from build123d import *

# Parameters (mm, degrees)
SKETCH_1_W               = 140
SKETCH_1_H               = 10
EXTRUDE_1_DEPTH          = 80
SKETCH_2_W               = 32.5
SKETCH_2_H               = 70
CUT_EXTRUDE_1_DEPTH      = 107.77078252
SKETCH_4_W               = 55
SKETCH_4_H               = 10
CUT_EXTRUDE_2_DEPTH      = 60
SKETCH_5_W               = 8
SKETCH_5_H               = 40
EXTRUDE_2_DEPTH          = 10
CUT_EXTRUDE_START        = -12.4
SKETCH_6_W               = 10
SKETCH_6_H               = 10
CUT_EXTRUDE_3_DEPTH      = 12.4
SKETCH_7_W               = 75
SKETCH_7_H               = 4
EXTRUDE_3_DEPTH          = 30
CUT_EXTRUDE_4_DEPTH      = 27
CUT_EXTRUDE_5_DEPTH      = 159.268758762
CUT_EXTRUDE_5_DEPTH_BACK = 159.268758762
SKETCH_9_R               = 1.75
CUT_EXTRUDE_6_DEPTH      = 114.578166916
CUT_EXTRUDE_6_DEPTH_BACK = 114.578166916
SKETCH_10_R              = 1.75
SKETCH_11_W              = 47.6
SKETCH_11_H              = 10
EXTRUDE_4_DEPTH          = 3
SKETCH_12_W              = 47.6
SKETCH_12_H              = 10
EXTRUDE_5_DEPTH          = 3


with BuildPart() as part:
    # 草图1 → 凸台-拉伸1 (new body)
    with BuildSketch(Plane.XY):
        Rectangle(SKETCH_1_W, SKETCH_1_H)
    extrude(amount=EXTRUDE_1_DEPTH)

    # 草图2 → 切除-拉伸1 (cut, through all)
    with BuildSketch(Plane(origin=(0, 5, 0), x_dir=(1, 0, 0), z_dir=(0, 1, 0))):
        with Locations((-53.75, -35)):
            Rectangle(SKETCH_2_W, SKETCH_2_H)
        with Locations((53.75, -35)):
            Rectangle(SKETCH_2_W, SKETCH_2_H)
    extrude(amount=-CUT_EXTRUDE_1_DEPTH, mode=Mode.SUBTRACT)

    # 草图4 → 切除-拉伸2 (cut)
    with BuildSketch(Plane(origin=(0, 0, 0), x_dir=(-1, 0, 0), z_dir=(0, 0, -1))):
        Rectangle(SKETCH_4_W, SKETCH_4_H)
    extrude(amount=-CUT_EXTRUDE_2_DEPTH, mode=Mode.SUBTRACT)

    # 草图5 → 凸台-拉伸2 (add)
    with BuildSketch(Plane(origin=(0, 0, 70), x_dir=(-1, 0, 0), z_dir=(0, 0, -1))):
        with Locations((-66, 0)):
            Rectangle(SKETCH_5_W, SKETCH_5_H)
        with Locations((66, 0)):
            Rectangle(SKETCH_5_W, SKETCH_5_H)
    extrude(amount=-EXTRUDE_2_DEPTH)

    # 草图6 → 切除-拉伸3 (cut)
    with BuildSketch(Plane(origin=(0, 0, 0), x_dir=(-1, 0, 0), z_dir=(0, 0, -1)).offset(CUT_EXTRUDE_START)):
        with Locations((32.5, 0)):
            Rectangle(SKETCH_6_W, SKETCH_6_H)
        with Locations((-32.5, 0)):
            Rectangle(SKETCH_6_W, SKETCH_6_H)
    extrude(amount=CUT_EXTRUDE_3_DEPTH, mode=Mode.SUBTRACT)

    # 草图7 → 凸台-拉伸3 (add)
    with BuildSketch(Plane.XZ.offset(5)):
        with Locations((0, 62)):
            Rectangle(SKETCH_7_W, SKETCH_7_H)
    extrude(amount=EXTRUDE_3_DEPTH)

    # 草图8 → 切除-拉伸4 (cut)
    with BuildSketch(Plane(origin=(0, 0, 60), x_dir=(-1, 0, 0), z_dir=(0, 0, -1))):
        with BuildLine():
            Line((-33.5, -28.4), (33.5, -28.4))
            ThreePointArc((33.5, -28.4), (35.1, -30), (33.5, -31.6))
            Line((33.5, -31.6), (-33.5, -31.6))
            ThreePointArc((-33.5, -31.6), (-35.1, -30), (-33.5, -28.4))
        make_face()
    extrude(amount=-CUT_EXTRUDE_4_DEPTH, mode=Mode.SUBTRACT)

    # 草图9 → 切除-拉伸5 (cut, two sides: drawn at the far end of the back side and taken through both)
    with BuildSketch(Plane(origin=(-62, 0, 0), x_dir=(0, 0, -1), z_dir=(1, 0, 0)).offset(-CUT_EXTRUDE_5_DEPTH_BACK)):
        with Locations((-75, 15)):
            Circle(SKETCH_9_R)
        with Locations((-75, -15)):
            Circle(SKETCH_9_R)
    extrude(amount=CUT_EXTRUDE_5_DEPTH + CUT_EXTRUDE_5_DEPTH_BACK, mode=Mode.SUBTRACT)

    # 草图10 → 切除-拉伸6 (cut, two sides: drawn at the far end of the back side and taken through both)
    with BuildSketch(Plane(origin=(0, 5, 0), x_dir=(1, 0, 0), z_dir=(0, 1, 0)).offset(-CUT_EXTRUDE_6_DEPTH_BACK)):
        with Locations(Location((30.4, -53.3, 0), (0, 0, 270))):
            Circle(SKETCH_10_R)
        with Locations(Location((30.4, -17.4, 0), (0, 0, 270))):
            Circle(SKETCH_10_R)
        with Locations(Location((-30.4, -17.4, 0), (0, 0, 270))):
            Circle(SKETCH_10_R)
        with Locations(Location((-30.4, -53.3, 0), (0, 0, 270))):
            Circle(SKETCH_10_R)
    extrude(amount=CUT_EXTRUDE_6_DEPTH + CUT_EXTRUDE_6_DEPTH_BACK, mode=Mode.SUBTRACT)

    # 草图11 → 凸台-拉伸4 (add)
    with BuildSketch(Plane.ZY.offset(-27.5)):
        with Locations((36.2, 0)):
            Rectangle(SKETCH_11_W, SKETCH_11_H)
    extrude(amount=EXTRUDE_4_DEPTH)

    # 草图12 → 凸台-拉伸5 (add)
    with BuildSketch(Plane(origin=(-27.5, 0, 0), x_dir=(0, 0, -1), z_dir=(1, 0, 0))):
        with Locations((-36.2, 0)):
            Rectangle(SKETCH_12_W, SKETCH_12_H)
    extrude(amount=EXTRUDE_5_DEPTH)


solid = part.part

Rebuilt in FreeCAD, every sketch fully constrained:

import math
import FreeCAD as App
import Part
import Sketcher

V = App.Vector
Q = App.Units.Quantity

doc = App.newDocument("Part")
params = doc.addObject("Spreadsheet::Sheet", "Params")
for row, (alias, value) in enumerate([
    ("sketch1_width", "140 mm"),
    ("sketch1_height", "10 mm"),
    ("pad1_length", "80 mm"),
    ("sketch2_height", "70 mm"),
    ("sketch2_width", "32.5 mm"),
    ("sketch3_width", "55 mm"),
    ("sketch3_height", "10 mm"),
    ("pocket2_length", "60 mm"),
    ("sketch4_width", "8 mm"),
    ("sketch4_height", "40 mm"),
    ("pad2_length", "10 mm"),
    ("sketch5_width", "10 mm"),
    ("pocket3_length", "12.4 mm"),
    ("sketch6_width", "75 mm"),
    ("sketch6_height", "4 mm"),
    ("pad3_length", "30 mm"),
    ("sketch7_radius", "1.6 mm"),
    ("sketch7_width", "67 mm"),
    ("pocket4_length", "27 mm"),
    ("sketch8_diameter", "3.5 mm"),
    ("sketch9_diameter", "3.5 mm"),
    ("sketch10_width", "10 mm"),
    ("sketch10_height", "47.6 mm"),
    ("pad4_length", "3 mm"),
    ("sketch11_width", "10 mm"),
    ("sketch11_height", "47.6 mm"),
    ("pad5_length", "3 mm"),
], start=1):
    params.set(f"A{row}", alias)
    params.set(f"B{row}", "=" + value)
    params.setAlias(f"B{row}", alias)

body = doc.addObject("PartDesign::Body", "Body")

# Sketch on XY plane
sketch1 = body.newObject("Sketcher::SketchObject", "Sketch")
sketch1.AttachmentSupport = (doc.getObject("XY_Plane"), [""])
sketch1.MapMode = "FlatFace"
sketch1.addGeometry([
    Part.LineSegment(V(-70, 5, 0), V(-70, -5, 0)),
    Part.LineSegment(V(-70, -5, 0), V(70, -5, 0)),
    Part.LineSegment(V(70, -5, 0), V(70, 5, 0)),
    Part.LineSegment(V(70, 5, 0), V(-70, 5, 0)),
], False)
sketch1.addConstraint([
    Sketcher.Constraint("Coincident", 0, 2, 1, 1),
    Sketcher.Constraint("Coincident", 1, 2, 2, 1),
    Sketcher.Constraint("Coincident", 2, 2, 3, 1),
    Sketcher.Constraint("Coincident", 3, 2, 0, 1),
    Sketcher.Constraint("Vertical", 0),
    Sketcher.Constraint("Horizontal", 1),
    Sketcher.Constraint("Vertical", 2),
    Sketcher.Constraint("Horizontal", 3),
    Sketcher.Constraint("Symmetric", 0, 2, 2, 2, -1, 1),
    Sketcher.Constraint("DistanceX", 1, 1, 1, 2, Q("140 mm")),
    Sketcher.Constraint("DistanceY", 0, 2, 0, 1, Q("10 mm")),
])
sketch1.setExpression("Constraints[9]", "Params.sketch1_width")
sketch1.setExpression("Constraints[10]", "Params.sketch1_height")
pad1 = body.newObject("PartDesign::Pad", "Pad")
pad1.Profile = sketch1
pad1.setExpression("Length", "Params.pad1_length")

# Sketch on XZ plane
sketch2 = body.newObject("Sketcher::SketchObject", "Sketch001")
sketch2.AttachmentSupport = (doc.getObject("XZ_Plane"), [""])
sketch2.MapMode = "FlatFace"
sketch2.AttachmentOffset = App.Placement(V(0, 0, -5), App.Rotation())
sketch2.addGeometry([
    Part.LineSegment(V(-70, 0, 0), V(-70, 70, 0)),  # 0
    Part.LineSegment(V(-70, 70, 0), V(-37.5, 70, 0)),  # 1
    Part.LineSegment(V(-37.5, 70, 0), V(-37.5, 0, 0)),  # 2
    Part.LineSegment(V(-37.5, 0, 0), V(-70, 0, 0)),  # 3
    Part.LineSegment(V(37.5, 0, 0), V(37.5, 70, 0)),  # 4
    Part.LineSegment(V(37.5, 70, 0), V(70, 70, 0)),  # 5
    Part.LineSegment(V(70, 70, 0), V(70, 0, 0)),  # 6
    Part.LineSegment(V(70, 0, 0), V(37.5, 0, 0)),  # 7
], False)
sketch2.addConstraint([
    Sketcher.Constraint("Coincident", 0, 2, 1, 1),
    Sketcher.Constraint("Coincident", 1, 2, 2, 1),
    Sketcher.Constraint("Coincident", 2, 2, 3, 1),
    Sketcher.Constraint("Coincident", 3, 2, 0, 1),
    Sketcher.Constraint("Coincident", 4, 2, 5, 1),
    Sketcher.Constraint("Coincident", 5, 2, 6, 1),
    Sketcher.Constraint("Coincident", 6, 2, 7, 1),
    Sketcher.Constraint("Coincident", 7, 2, 4, 1),
    Sketcher.Constraint("Vertical", 0),
    Sketcher.Constraint("Horizontal", 1),
    Sketcher.Constraint("Vertical", 2),
    Sketcher.Constraint("Horizontal", 3),
    Sketcher.Constraint("Vertical", 4),
    Sketcher.Constraint("Horizontal", 5),
    Sketcher.Constraint("Vertical", 6),
    Sketcher.Constraint("Horizontal", 7),
    Sketcher.Constraint("Symmetric", 3, 2, 6, 2, -1, 1),
    Sketcher.Constraint("Symmetric", 1, 2, 4, 2, -2),
    Sketcher.Constraint("PointOnObject", 2, 2, -1),
    Sketcher.Constraint("DistanceY", 0, 1, 0, 2, Q("70 mm")),
    Sketcher.Constraint("DistanceX", 1, 1, 1, 2, Q("32.5 mm")),
    Sketcher.Constraint("DistanceX", 0, 2, -1, 1, Q("70 mm")),
])
sketch2.setExpression("Constraints[19]", "Params.sketch2_height")
sketch2.setExpression("Constraints[20]", "Params.sketch2_width")
pocket1 = body.newObject("PartDesign::Pocket", "Pocket")
pocket1.Profile = sketch2
pocket1.Type = "ThroughAll"
pocket1.Reversed = True

# Sketch on XY plane
sketch3 = body.newObject("Sketcher::SketchObject", "Sketch002")
sketch3.AttachmentSupport = (doc.getObject("XY_Plane"), [""])
sketch3.MapMode = "FlatFace"
sketch3.addGeometry([
    Part.LineSegment(V(27.5, 5, 0), V(27.5, -5, 0)),
    Part.LineSegment(V(27.5, -5, 0), V(-27.5, -5, 0)),
    Part.LineSegment(V(-27.5, -5, 0), V(-27.5, 5, 0)),
    Part.LineSegment(V(-27.5, 5, 0), V(27.5, 5, 0)),
], False)
sketch3.addConstraint([
    Sketcher.Constraint("Coincident", 0, 2, 1, 1),
    Sketcher.Constraint("Coincident", 1, 2, 2, 1),
    Sketcher.Constraint("Coincident", 2, 2, 3, 1),
    Sketcher.Constraint("Coincident", 3, 2, 0, 1),
    Sketcher.Constraint("Vertical", 0),
    Sketcher.Constraint("Horizontal", 1),
    Sketcher.Constraint("Vertical", 2),
    Sketcher.Constraint("Horizontal", 3),
    Sketcher.Constraint("Symmetric", 0, 2, 2, 2, -1, 1),
    Sketcher.Constraint("DistanceX", 1, 2, 1, 1, Q("55 mm")),
    Sketcher.Constraint("DistanceY", 0, 2, 0, 1, Q("10 mm")),
])
sketch3.setExpression("Constraints[9]", "Params.sketch3_width")
sketch3.setExpression("Constraints[10]", "Params.sketch3_height")
pocket2 = body.newObject("PartDesign::Pocket", "Pocket001")
pocket2.Profile = sketch3
pocket2.setExpression("Length", "Params.pocket2_length")
pocket2.Reversed = True

# Sketch on XY plane
sketch4 = body.newObject("Sketcher::SketchObject", "Sketch003")
sketch4.AttachmentSupport = (doc.getObject("XY_Plane"), [""])
sketch4.MapMode = "FlatFace"
sketch4.AttachmentOffset = App.Placement(V(0, 0, 70), App.Rotation())
sketch4.addGeometry([
    Part.LineSegment(V(70, 20, 0), V(70, -20, 0)),  # 0
    Part.LineSegment(V(70, -20, 0), V(62, -20, 0)),  # 1
    Part.LineSegment(V(62, -20, 0), V(62, 20, 0)),  # 2
    Part.LineSegment(V(62, 20, 0), V(70, 20, 0)),  # 3
    Part.LineSegment(V(-62, 20, 0), V(-62, -20, 0)),  # 4
    Part.LineSegment(V(-62, -20, 0), V(-70, -20, 0)),  # 5
    Part.LineSegment(V(-70, -20, 0), V(-70, 20, 0)),  # 6
    Part.LineSegment(V(-70, 20, 0), V(-62, 20, 0)),  # 7
], False)
sketch4.addConstraint([
    Sketcher.Constraint("Coincident", 0, 2, 1, 1),
    Sketcher.Constraint("Coincident", 1, 2, 2, 1),
    Sketcher.Constraint("Coincident", 2, 2, 3, 1),
    Sketcher.Constraint("Coincident", 3, 2, 0, 1),
    Sketcher.Constraint("Coincident", 4, 2, 5, 1),
    Sketcher.Constraint("Coincident", 5, 2, 6, 1),
    Sketcher.Constraint("Coincident", 6, 2, 7, 1),
    Sketcher.Constraint("Coincident", 7, 2, 4, 1),
    Sketcher.Constraint("Vertical", 0),
    Sketcher.Constraint("Horizontal", 1),
    Sketcher.Constraint("Vertical", 2),
    Sketcher.Constraint("Horizontal", 3),
    Sketcher.Constraint("Vertical", 4),
    Sketcher.Constraint("Horizontal", 5),
    Sketcher.Constraint("Vertical", 6),
    Sketcher.Constraint("Horizontal", 7),
    Sketcher.Constraint("Symmetric", 2, 2, 4, 2, -1, 1),
    Sketcher.Constraint("Symmetric", 0, 2, 6, 2, -1, 1),
    Sketcher.Constraint("Horizontal", 1, 2, 4, 2),
    Sketcher.Constraint("DistanceX", 1, 2, 1, 1, Q("8 mm")),
    Sketcher.Constraint("DistanceY", 0, 2, 0, 1, Q("40 mm")),
    Sketcher.Constraint("DistanceX", -1, 1, 0, 2, Q("70 mm")),
])
sketch4.setExpression("Constraints[19]", "Params.sketch4_width")
sketch4.setExpression("Constraints[20]", "Params.sketch4_height")
pad2 = body.newObject("PartDesign::Pad", "Pad001")
pad2.Profile = sketch4
pad2.setExpression("Length", "Params.pad2_length")

# Sketch on XY plane
sketch5 = body.newObject("Sketcher::SketchObject", "Sketch004")
sketch5.AttachmentSupport = (doc.getObject("XY_Plane"), [""])
sketch5.MapMode = "FlatFace"
sketch5.AttachmentOffset = App.Placement(V(0, 0, 12.4), App.Rotation())
sketch5.addGeometry([
    Part.LineSegment(V(-27.5, 5, 0), V(-27.5, -5, 0)),  # 0
    Part.LineSegment(V(-27.5, -5, 0), V(-37.5, -5, 0)),  # 1
    Part.LineSegment(V(-37.5, -5, 0), V(-37.5, 5, 0)),  # 2
    Part.LineSegment(V(-37.5, 5, 0), V(-27.5, 5, 0)),  # 3
    Part.LineSegment(V(37.5, 5, 0), V(37.5, -5, 0)),  # 4
    Part.LineSegment(V(37.5, -5, 0), V(27.5, -5, 0)),  # 5
    Part.LineSegment(V(27.5, -5, 0), V(27.5, 5, 0)),  # 6
    Part.LineSegment(V(27.5, 5, 0), V(37.5, 5, 0)),  # 7
], False)
sketch5.addConstraint([
    Sketcher.Constraint("Coincident", 0, 2, 1, 1),
    Sketcher.Constraint("Coincident", 1, 2, 2, 1),
    Sketcher.Constraint("Coincident", 2, 2, 3, 1),
    Sketcher.Constraint("Coincident", 3, 2, 0, 1),
    Sketcher.Constraint("Coincident", 4, 2, 5, 1),
    Sketcher.Constraint("Coincident", 5, 2, 6, 1),
    Sketcher.Constraint("Coincident", 6, 2, 7, 1),
    Sketcher.Constraint("Coincident", 7, 2, 4, 1),
    Sketcher.Constraint("Vertical", 0),
    Sketcher.Constraint("Horizontal", 1),
    Sketcher.Constraint("Vertical", 2),
    Sketcher.Constraint("Horizontal", 3),
    Sketcher.Constraint("Vertical", 4),
    Sketcher.Constraint("Horizontal", 5),
    Sketcher.Constraint("Vertical", 6),
    Sketcher.Constraint("Horizontal", 7),
    Sketcher.Constraint("Symmetric", 2, 2, 4, 2, -1, 1),
    Sketcher.Constraint("Symmetric", 0, 2, 6, 2, -1, 1),
    Sketcher.Constraint("Horizontal", 1, 2, 4, 2),
    Sketcher.Constraint("Equal", 7, 0),
    Sketcher.Constraint("DistanceX", 1, 2, 1, 1, Q("10 mm")),
    Sketcher.Constraint("DistanceX", 0, 2, 4, 2, Q("65 mm")),
])
sketch5.setExpression("Constraints[20]", "Params.sketch5_width")
pocket3 = body.newObject("PartDesign::Pocket", "Pocket002")
pocket3.Profile = sketch5
pocket3.setExpression("Length", "Params.pocket3_length")

# Sketch on XZ plane
sketch6 = body.newObject("Sketcher::SketchObject", "Sketch005")
sketch6.AttachmentSupport = (doc.getObject("XZ_Plane"), [""])
sketch6.MapMode = "FlatFace"
sketch6.AttachmentOffset = App.Placement(V(0, 0, 5), App.Rotation())
sketch6.addGeometry([
    Part.LineSegment(V(-37.5, 64, 0), V(-37.5, 60, 0)),
    Part.LineSegment(V(-37.5, 60, 0), V(37.5, 60, 0)),
    Part.LineSegment(V(37.5, 60, 0), V(37.5, 64, 0)),
    Part.LineSegment(V(37.5, 64, 0), V(-37.5, 64, 0)),
], False)
sketch6.addConstraint([
    Sketcher.Constraint("Coincident", 0, 2, 1, 1),
    Sketcher.Constraint("Coincident", 1, 2, 2, 1),
    Sketcher.Constraint("Coincident", 2, 2, 3, 1),
    Sketcher.Constraint("Coincident", 3, 2, 0, 1),
    Sketcher.Constraint("Vertical", 0),
    Sketcher.Constraint("Horizontal", 1),
    Sketcher.Constraint("Vertical", 2),
    Sketcher.Constraint("Horizontal", 3),
    Sketcher.Constraint("DistanceX", 1, 1, 1, 2, Q("75 mm")),
    Sketcher.Constraint("DistanceY", 0, 2, 0, 1, Q("4 mm")),
    Sketcher.Constraint("DistanceY", -1, 1, 0, 2, Q("60 mm")),
    Sketcher.Constraint("DistanceX", 0, 2, -1, 1, Q("37.5 mm")),
])
sketch6.setExpression("Constraints[8]", "Params.sketch6_width")
sketch6.setExpression("Constraints[9]", "Params.sketch6_height")
pad3 = body.newObject("PartDesign::Pad", "Pad002")
pad3.Profile = sketch6
pad3.setExpression("Length", "Params.pad3_length")

# Sketch on XY plane
sketch7 = body.newObject("Sketcher::SketchObject", "Sketch006")
sketch7.AttachmentSupport = (doc.getObject("XY_Plane"), [""])
sketch7.MapMode = "FlatFace"
sketch7.AttachmentOffset = App.Placement(V(0, 0, 60), App.Rotation())
sketch7.addGeometry([
    Part.LineSegment(V(-33.5, -28.4, 0), V(33.5, -28.4, 0)),
    Part.ArcOfCircle(Part.Circle(V(33.5, -30, 0), V(0, 0, 1), 1.6), math.radians(-90), math.radians(90)),
    Part.LineSegment(V(33.5, -31.6, 0), V(-33.5, -31.6, 0)),
    Part.ArcOfCircle(Part.Circle(V(-33.5, -30, 0), V(0, 0, 1), 1.6), math.radians(90), math.radians(270)),
], False)
sketch7.addConstraint([
    Sketcher.Constraint("Tangent", 0, 2, 1, 2),
    Sketcher.Constraint("Tangent", 1, 1, 2, 1),
    Sketcher.Constraint("Tangent", 2, 2, 3, 2),
    Sketcher.Constraint("Tangent", 3, 1, 0, 1),
    Sketcher.Constraint("Horizontal", 0),
    Sketcher.Constraint("Horizontal", 2),
    Sketcher.Constraint("Radius", 1, Q("1.6 mm")),
    Sketcher.Constraint("DistanceX", 0, 1, 0, 2, Q("67 mm")),
    Sketcher.Constraint("DistanceY", 1, 3, -1, 1, Q("30 mm")),
    Sketcher.Constraint("DistanceX", -1, 1, 1, 3, Q("33.5 mm")),
])
sketch7.setExpression("Constraints[6]", "Params.sketch7_radius")
sketch7.setExpression("Constraints[7]", "Params.sketch7_width")
pocket4 = body.newObject("PartDesign::Pocket", "Pocket003")
pocket4.Profile = sketch7
pocket4.setExpression("Length", "Params.pocket4_length")
pocket4.Reversed = True

# Sketch on YZ plane
sketch8 = body.newObject("Sketcher::SketchObject", "Sketch007")
sketch8.AttachmentSupport = (doc.getObject("YZ_Plane"), [""])
sketch8.MapMode = "FlatFace"
sketch8.AttachmentOffset = App.Placement(V(0, 0, -62), App.Rotation())
sketch8.addGeometry([
    Part.Circle(V(15, 75, 0), V(0, 0, 1), 1.75),
    Part.Circle(V(-15, 75, 0), V(0, 0, 1), 1.75),
], False)
sketch8.addConstraint([
    Sketcher.Constraint("Equal", 0, 1),
    Sketcher.Constraint("Symmetric", 0, 3, 1, 3, -2),
    Sketcher.Constraint("Diameter", 0, Q("3.5 mm")),
    Sketcher.Constraint("DistanceX", -1, 1, 0, 3, Q("15 mm")),
    Sketcher.Constraint("DistanceY", -1, 1, 0, 3, Q("75 mm")),
])
sketch8.setExpression("Constraints[2]", "Params.sketch8_diameter")
pocket5 = body.newObject("PartDesign::Pocket", "Pocket004")
pocket5.Profile = sketch8
pocket5.Type = "ThroughAll"
pocket5.Midplane = True

# Sketch on XZ plane
sketch9 = body.newObject("Sketcher::SketchObject", "Sketch008")
sketch9.AttachmentSupport = (doc.getObject("XZ_Plane"), [""])
sketch9.MapMode = "FlatFace"
sketch9.AttachmentOffset = App.Placement(V(0, 0, -5), App.Rotation())
sketch9.addGeometry([
    Part.Circle(V(30.4, 53.3, 0), V(0, 0, 1), 1.75),
    Part.Circle(V(30.4, 17.4, 0), V(0, 0, 1), 1.75),
    Part.Circle(V(-30.4, 17.4, 0), V(0, 0, 1), 1.75),
    Part.Circle(V(-30.4, 53.3, 0), V(0, 0, 1), 1.75),
], False)
sketch9.addConstraint([
    Sketcher.Constraint("Equal", 0, 1),
    Sketcher.Constraint("Equal", 1, 2),
    Sketcher.Constraint("Equal", 2, 3),
    Sketcher.Constraint("Symmetric", 1, 3, 2, 3, -2),
    Sketcher.Constraint("Symmetric", 0, 3, 3, 3, -2),
    Sketcher.Constraint("Vertical", 0, 3, 1, 3),
    Sketcher.Constraint("Diameter", 0, Q("3.5 mm")),
    Sketcher.Constraint("DistanceX", -1, 1, 0, 3, Q("30.4 mm")),
    Sketcher.Constraint("DistanceY", -1, 1, 0, 3, Q("53.3 mm")),
    Sketcher.Constraint("DistanceY", -1, 1, 1, 3, Q("17.4 mm")),
])
sketch9.setExpression("Constraints[6]", "Params.sketch9_diameter")
pocket6 = body.newObject("PartDesign::Pocket", "Pocket005")
pocket6.Profile = sketch9
pocket6.Type = "ThroughAll"
pocket6.Midplane = True

# Sketch on YZ plane
sketch10 = body.newObject("Sketcher::SketchObject", "Sketch009")
sketch10.AttachmentSupport = (doc.getObject("YZ_Plane"), [""])
sketch10.MapMode = "FlatFace"
sketch10.AttachmentOffset = App.Placement(V(0, 0, 27.5), App.Rotation())
sketch10.addGeometry([
    Part.LineSegment(V(5, 12.4, 0), V(-5, 12.4, 0)),
    Part.LineSegment(V(-5, 12.4, 0), V(-5, 60, 0)),
    Part.LineSegment(V(-5, 60, 0), V(5, 60, 0)),
    Part.LineSegment(V(5, 60, 0), V(5, 12.4, 0)),
], False)
sketch10.addConstraint([
    Sketcher.Constraint("Coincident", 0, 2, 1, 1),
    Sketcher.Constraint("Coincident", 1, 2, 2, 1),
    Sketcher.Constraint("Coincident", 2, 2, 3, 1),
    Sketcher.Constraint("Coincident", 3, 2, 0, 1),
    Sketcher.Constraint("Horizontal", 0),
    Sketcher.Constraint("Vertical", 1),
    Sketcher.Constraint("Horizontal", 2),
    Sketcher.Constraint("Vertical", 3),
    Sketcher.Constraint("DistanceX", 0, 2, 0, 1, Q("10 mm")),
    Sketcher.Constraint("DistanceY", 1, 1, 1, 2, Q("47.6 mm")),
    Sketcher.Constraint("DistanceX", 0, 2, -1, 1, Q("5 mm")),
    Sketcher.Constraint("DistanceY", -1, 1, 1, 2, Q("60 mm")),
])
sketch10.setExpression("Constraints[8]", "Params.sketch10_width")
sketch10.setExpression("Constraints[9]", "Params.sketch10_height")
pad4 = body.newObject("PartDesign::Pad", "Pad003")
pad4.Profile = sketch10
pad4.setExpression("Length", "Params.pad4_length")
pad4.Reversed = True

# Sketch on YZ plane
sketch11 = body.newObject("Sketcher::SketchObject", "Sketch010")
sketch11.AttachmentSupport = (doc.getObject("YZ_Plane"), [""])
sketch11.MapMode = "FlatFace"
sketch11.AttachmentOffset = App.Placement(V(0, 0, -27.5), App.Rotation())
sketch11.addGeometry([
    Part.LineSegment(V(5, 60, 0), V(-5, 60, 0)),
    Part.LineSegment(V(-5, 60, 0), V(-5, 12.4, 0)),
    Part.LineSegment(V(-5, 12.4, 0), V(5, 12.4, 0)),
    Part.LineSegment(V(5, 12.4, 0), V(5, 60, 0)),
], False)
sketch11.addConstraint([
    Sketcher.Constraint("Coincident", 0, 2, 1, 1),
    Sketcher.Constraint("Coincident", 1, 2, 2, 1),
    Sketcher.Constraint("Coincident", 2, 2, 3, 1),
    Sketcher.Constraint("Coincident", 3, 2, 0, 1),
    Sketcher.Constraint("Horizontal", 0),
    Sketcher.Constraint("Vertical", 1),
    Sketcher.Constraint("Horizontal", 2),
    Sketcher.Constraint("Vertical", 3),
    Sketcher.Constraint("DistanceX", 0, 2, 0, 1, Q("10 mm")),
    Sketcher.Constraint("DistanceY", 1, 2, 1, 1, Q("47.6 mm")),
    Sketcher.Constraint("DistanceX", 0, 2, -1, 1, Q("5 mm")),
    Sketcher.Constraint("DistanceY", -1, 1, 0, 2, Q("60 mm")),
])
sketch11.setExpression("Constraints[8]", "Params.sketch11_width")
sketch11.setExpression("Constraints[9]", "Params.sketch11_height")
pad5 = body.newObject("PartDesign::Pad", "Pad004")
pad5.Profile = sketch11
pad5.setExpression("Length", "Params.pad5_length")

doc.recompute()
